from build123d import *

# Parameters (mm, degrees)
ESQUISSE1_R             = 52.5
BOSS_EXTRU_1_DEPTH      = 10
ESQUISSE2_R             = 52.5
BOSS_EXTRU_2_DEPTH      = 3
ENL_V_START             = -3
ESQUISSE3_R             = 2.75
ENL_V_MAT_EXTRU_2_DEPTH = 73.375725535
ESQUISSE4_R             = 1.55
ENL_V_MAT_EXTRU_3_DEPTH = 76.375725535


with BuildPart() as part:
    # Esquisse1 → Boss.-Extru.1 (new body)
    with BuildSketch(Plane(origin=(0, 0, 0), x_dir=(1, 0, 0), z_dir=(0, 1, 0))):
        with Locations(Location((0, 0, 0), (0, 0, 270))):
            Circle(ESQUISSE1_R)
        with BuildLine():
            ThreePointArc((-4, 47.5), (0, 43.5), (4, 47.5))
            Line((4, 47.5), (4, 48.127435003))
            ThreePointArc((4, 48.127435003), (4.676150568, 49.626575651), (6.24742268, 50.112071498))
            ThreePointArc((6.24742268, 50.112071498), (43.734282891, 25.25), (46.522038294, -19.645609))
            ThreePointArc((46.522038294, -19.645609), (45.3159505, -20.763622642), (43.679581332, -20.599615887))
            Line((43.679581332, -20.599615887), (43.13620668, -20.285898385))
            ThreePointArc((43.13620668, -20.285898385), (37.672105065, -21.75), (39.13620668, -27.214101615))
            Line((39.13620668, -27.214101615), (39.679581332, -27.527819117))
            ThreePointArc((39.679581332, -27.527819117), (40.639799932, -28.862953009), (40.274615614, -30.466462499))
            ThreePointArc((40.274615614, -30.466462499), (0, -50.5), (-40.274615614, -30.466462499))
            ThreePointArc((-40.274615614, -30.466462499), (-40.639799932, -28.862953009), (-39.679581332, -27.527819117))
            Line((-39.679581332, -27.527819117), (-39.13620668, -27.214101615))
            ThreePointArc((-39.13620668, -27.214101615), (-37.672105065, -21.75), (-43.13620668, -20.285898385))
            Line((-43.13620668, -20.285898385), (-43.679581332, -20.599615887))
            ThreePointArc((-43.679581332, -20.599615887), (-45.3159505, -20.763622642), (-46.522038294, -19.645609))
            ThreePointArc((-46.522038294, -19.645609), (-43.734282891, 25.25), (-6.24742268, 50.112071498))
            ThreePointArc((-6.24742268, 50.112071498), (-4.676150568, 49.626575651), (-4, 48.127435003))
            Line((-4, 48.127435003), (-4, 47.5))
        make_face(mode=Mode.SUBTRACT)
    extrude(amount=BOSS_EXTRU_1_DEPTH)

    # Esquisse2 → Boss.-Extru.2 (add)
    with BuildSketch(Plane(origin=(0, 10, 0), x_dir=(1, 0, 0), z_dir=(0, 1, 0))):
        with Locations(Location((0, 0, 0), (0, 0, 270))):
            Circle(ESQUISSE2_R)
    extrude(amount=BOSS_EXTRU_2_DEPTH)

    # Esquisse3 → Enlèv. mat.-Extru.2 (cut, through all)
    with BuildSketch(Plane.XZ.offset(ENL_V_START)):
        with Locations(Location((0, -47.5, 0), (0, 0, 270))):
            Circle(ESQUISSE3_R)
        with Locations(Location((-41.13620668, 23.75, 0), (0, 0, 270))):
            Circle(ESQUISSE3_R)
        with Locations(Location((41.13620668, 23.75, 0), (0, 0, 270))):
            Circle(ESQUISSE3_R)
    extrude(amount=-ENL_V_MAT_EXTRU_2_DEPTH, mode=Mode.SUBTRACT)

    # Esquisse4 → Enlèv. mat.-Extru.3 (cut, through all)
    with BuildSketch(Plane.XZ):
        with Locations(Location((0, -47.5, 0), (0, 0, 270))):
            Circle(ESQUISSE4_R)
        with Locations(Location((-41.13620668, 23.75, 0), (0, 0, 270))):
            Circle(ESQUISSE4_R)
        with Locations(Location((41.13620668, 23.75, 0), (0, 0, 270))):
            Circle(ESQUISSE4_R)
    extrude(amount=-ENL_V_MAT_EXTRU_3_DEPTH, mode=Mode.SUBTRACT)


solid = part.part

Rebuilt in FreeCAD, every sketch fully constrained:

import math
import FreeCAD as App
import Part
import Sketcher

V = App.Vector
Q = App.Units.Quantity

doc = App.newDocument("Part")
body = doc.addObject("PartDesign::Body", "Body")

# Sketch on XZ plane
sketch1 = doc.addObject("Sketcher::SketchObject", "Sketch")
body.addObject(sketch1)
sketch1.AttachmentSupport = (doc.XZ_Plane, [""])
sketch1.MapMode = "FlatFace"
sketch1.addGeometry([
    Part.Circle(V(0, 0, 0), V(0, 0, 1), 52.5),  # 0
    Part.LineSegment(V(-4, -48.1, 0), V(-4, -47.5, 0)),  # 1
    Part.ArcOfCircle(Part.Circle(V(0, -47.5, 0), V(0, 0, 1), 4), math.radians(0), math.radians(180)),  # 2
    Part.LineSegment(V(4, -47.5, 0), V(4, -48.1, 0)),  # 3
    Part.ArcOfCircle(Part.Circle(V(6, -48.1, 0), V(0, 0, 1), 2), math.radians(180), math.radians(277)),  # 4
    Part.ArcOfCircle(Part.Circle(V(0, 0, 0), V(0, 0, 1), 50.5), math.radians(-83), math.radians(23)),  # 5
    Part.ArcOfCircle(Part.Circle(V(44.7, 18.9, 0), V(0, 0, 1), 2), math.radians(23), math.radians(120)),  # 6
    Part.LineSegment(V(43.7, 20.6, 0), V(43.1, 20.3, 0)),  # 7
    Part.ArcOfCircle(Part.Circle(V(41.1, 23.8, 0), V(0, 0, 1), 4), math.radians(120), math.radians(300)),  # 8
    Part.LineSegment(V(39.1, 27.2, 0), V(39.7, 27.5, 0)),  # 9
    Part.ArcOfCircle(Part.Circle(V(38.7, 29.3, 0), V(0, 0, 1), 2), math.radians(-60), math.radians(37)),  # 10
    Part.ArcOfCircle(Part.Circle(V(0, 0, 0), V(0, 0, 1), 50.5), math.radians(37), math.radians(143)),  # 11
    Part.ArcOfCircle(Part.Circle(V(-38.7, 29.3, 0), V(0, 0, 1), 2), math.radians(143), math.radians(240)),  # 12
    Part.LineSegment(V(-39.7, 27.5, 0), V(-39.1, 27.2, 0)),  # 13
    Part.ArcOfCircle(Part.Circle(V(-41.1, 23.8, 0), V(0, 0, 1), 4), math.radians(-120), math.radians(60)),  # 14
    Part.LineSegment(V(-43.1, 20.3, 0), V(-43.7, 20.6, 0)),  # 15
    Part.ArcOfCircle(Part.Circle(V(-44.7, 18.9, 0), V(0, 0, 1), 2), math.radians(60), math.radians(157)),  # 16
    Part.ArcOfCircle(Part.Circle(V(0, 0, 0), V(0, 0, 1), 50.5), math.radians(157), math.radians(263)),  # 17
    Part.ArcOfCircle(Part.Circle(V(-6, -48.1, 0), V(0, 0, 1), 2), math.radians(-97), math.radians(0)),  # 18
], False)
sketch1.addConstraint([
    Sketcher.Constraint("Tangent", 1, 2, 2, 2),
    Sketcher.Constraint("Tangent", 2, 1, 3, 1),
    Sketcher.Constraint("Tangent", 3, 2, 4, 1),
    Sketcher.Constraint("Tangent", 4, 2, 5, 1),
    Sketcher.Constraint("Tangent", 5, 2, 6, 1),
    Sketcher.Constraint("Tangent", 6, 2, 7, 1),
    Sketcher.Constraint("Tangent", 7, 2, 8, 2),
    Sketcher.Constraint("Tangent", 8, 1, 9, 1),
    Sketcher.Constraint("Tangent", 9, 2, 10, 1),
    Sketcher.Constraint("Tangent", 10, 2, 11, 1),
    Sketcher.Constraint("Tangent", 11, 2, 12, 1),
    Sketcher.Constraint("Tangent", 12, 2, 13, 1),
    Sketcher.Constraint("Tangent", 13, 2, 14, 2),
    Sketcher.Constraint("Tangent", 14, 1, 15, 1),
    Sketcher.Constraint("Tangent", 15, 2, 16, 1),
    Sketcher.Constraint("Tangent", 16, 2, 17, 1),
    Sketcher.Constraint("Tangent", 17, 2, 18, 1),
    Sketcher.Constraint("Tangent", 18, 2, 1, 1),
    Sketcher.Constraint("Vertical", 1),
    Sketcher.Constraint("Vertical", 3),
    Sketcher.Constraint("Coincident", 0, 3, -1, 1),
    Sketcher.Constraint("Coincident", 5, 3, -1, 1),
    Sketcher.Constraint("Coincident", 11, 3, -1, 1),
    Sketcher.Constraint("Coincident", 17, 3, -1, 1),
    Sketcher.Constraint("Equal", 4, 6),
    Sketcher.Constraint("Equal", 2, 8),
    Sketcher.Constraint("Equal", 6, 10),
    Sketcher.Constraint("Equal", 5, 11),
    Sketcher.Constraint("Equal", 10, 12),
    Sketcher.Constraint("Equal", 8, 14),
    Sketcher.Constraint("Equal", 12, 16),
    Sketcher.Constraint("Equal", 11, 17),
    Sketcher.Constraint("Equal", 16, 18),
    Sketcher.Constraint("Symmetric", 8, 3, 14, 3, -2),
    Sketcher.Constraint("PointOnObject", 2, 3, -2),
    Sketcher.Constraint("Parallel", 7, 9),
    Sketcher.Constraint("Parallel", 13, 15),
    Sketcher.Constraint("Horizontal", 10, 3, 12, 3),
    Sketcher.Constraint("Equal", 7, 9),
    Sketcher.Constraint("Diameter", 0, 105.0),
    Sketcher.Constraint("Radius", 2, 4.0),
    Sketcher.Constraint("Radius", 4, 2.0),
    Sketcher.Constraint("Radius", 5, 50.5),
    Sketcher.Constraint("Angle", 7, Q("-150 deg")),
    Sketcher.Constraint("DistanceY", 2, 3, -1, 1, 47.5),
    Sketcher.Constraint("DistanceY", -1, 1, 8, 3, 23.75),
])
pad1 = doc.addObject("PartDesign::Pad", "Pad")
body.addObject(pad1)
pad1.Profile = sketch1
pad1.Length = 10
pad1.Reversed = True

# Sketch on XZ plane
sketch2 = doc.addObject("Sketcher::SketchObject", "Sketch001")
body.addObject(sketch2)
sketch2.AttachmentSupport = (doc.XZ_Plane, [""])
sketch2.MapMode = "FlatFace"
sketch2.AttachmentOffset = App.Placement(V(0, 0, -10), App.Rotation())
sketch2.addGeometry(Part.Circle(V(0, 0, 0), V(0, 0, 1), 52), False)
sketch2.addConstraint([
    Sketcher.Constraint("Coincident", 0, 3, -1, 1),
    Sketcher.Constraint("Diameter", 0, 105.0),
])
pad2 = doc.addObject("PartDesign::Pad", "Pad001")
body.addObject(pad2)
pad2.Profile = sketch2
pad2.Length = 3
pad2.Reversed = True

# Sketch on XZ plane
sketch3 = doc.addObject("Sketcher::SketchObject", "Sketch002")
body.addObject(sketch3)
sketch3.AttachmentSupport = (doc.XZ_Plane, [""])
sketch3.MapMode = "FlatFace"
sketch3.AttachmentOffset = App.Placement(V(0, 0, -3), App.Rotation())
sketch3.addGeometry([
    Part.Circle(V(0, -47.5, 0), V(0, 0, 1), 2.8),
    Part.Circle(V(-41.1, 23.8, 0), V(0, 0, 1), 2.8),
    Part.Circle(V(41.1, 23.8, 0), V(0, 0, 1), 2.8),
], False)
sketch3.addConstraint([
    Sketcher.Constraint("Equal", 0, 1),
    Sketcher.Constraint("Equal", 1, 2),
    Sketcher.Constraint("Symmetric", 1, 3, 2, 3, -2),
    Sketcher.Constraint("PointOnObject", 0, 3, -2),
    Sketcher.Constraint("Diameter", 0, 5.5),
    Sketcher.Constraint("DistanceY", 0, 3, -1, 1, 47.5),
    Sketcher.Constraint("DistanceY", -1, 1, 1, 3, 23.75),
    Sketcher.Constraint("DistanceX", 1, 3, -1, 1, 41.136207),
])
pocket1 = doc.addObject("PartDesign::Pocket", "Pocket")
body.addObject(pocket1)
pocket1.Profile = sketch3
pocket1.Type = "ThroughAll"

# Sketch on XZ plane
sketch4 = doc.addObject("Sketcher::SketchObject", "Sketch003")
body.addObject(sketch4)
sketch4.AttachmentSupport = (doc.XZ_Plane, [""])
sketch4.MapMode = "FlatFace"
sketch4.addGeometry([
    Part.Circle(V(0, -47.5, 0), V(0, 0, 1), 1.6),
    Part.Circle(V(-41.1, 23.8, 0), V(0, 0, 1), 1.6),
    Part.Circle(V(41.1, 23.8, 0), V(0, 0, 1), 1.6),
], False)
sketch4.addConstraint([
    Sketcher.Constraint("Equal", 0, 1),
    Sketcher.Constraint("Equal", 1, 2),
    Sketcher.Constraint("Symmetric", 1, 3, 2, 3, -2),
    Sketcher.Constraint("PointOnObject", 0, 3, -2),
    Sketcher.Constraint("Diameter", 0, 3.1),
    Sketcher.Constraint("DistanceY", 0, 3, -1, 1, 47.5),
    Sketcher.Constraint("DistanceY", -1, 1, 1, 3, 23.75),
    Sketcher.Constraint("DistanceX", 1, 3, -1, 1, 41.136207),
])
pocket2 = doc.addObject("PartDesign::Pocket", "Pocket001")
body.addObject(pocket2)
pocket2.Profile = sketch4
pocket2.Type = "ThroughAll"

doc.recompute()
